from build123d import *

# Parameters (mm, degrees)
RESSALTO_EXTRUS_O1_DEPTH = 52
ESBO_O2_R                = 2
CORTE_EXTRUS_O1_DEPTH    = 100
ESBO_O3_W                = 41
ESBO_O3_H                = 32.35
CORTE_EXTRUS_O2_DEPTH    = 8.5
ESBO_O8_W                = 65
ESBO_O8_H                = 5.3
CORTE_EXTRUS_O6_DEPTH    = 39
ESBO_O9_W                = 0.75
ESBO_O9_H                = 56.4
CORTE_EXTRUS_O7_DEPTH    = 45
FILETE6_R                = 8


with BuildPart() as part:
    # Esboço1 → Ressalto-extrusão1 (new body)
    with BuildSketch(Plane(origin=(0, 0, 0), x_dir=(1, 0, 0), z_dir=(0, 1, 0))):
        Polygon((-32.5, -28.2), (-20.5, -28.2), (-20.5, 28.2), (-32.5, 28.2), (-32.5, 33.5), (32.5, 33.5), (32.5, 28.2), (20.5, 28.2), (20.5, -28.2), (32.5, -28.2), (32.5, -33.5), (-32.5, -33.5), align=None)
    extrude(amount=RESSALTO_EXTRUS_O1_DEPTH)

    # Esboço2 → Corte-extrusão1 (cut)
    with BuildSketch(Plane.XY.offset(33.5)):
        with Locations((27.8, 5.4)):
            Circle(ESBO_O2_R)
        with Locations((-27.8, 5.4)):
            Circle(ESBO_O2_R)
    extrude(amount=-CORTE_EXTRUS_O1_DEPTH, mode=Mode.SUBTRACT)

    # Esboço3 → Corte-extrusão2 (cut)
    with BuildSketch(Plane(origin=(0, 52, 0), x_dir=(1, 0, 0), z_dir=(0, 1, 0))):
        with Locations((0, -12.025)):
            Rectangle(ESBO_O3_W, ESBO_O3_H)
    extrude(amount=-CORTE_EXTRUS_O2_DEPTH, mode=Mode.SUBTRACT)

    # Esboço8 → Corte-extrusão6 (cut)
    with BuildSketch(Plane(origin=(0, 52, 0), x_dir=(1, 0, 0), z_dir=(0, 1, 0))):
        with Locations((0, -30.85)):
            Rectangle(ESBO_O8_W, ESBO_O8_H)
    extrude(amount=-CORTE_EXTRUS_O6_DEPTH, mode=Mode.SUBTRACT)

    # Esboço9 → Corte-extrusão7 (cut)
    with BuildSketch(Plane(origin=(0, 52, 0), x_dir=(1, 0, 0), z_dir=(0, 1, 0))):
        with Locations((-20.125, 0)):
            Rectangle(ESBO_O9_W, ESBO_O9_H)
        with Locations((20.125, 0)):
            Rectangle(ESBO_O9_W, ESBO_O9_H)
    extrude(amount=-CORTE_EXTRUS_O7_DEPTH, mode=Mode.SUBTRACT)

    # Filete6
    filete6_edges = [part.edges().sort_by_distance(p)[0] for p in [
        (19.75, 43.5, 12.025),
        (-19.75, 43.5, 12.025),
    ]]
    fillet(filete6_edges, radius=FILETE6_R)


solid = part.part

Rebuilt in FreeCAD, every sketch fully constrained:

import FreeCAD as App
import Part
import Sketcher
from FreeCAD import Vector
Q = App.Units.Quantity


def edges_at(feature, points):
    """Names of the edges that pass closest to the given points."""
    edges = feature.Shape.Edges
    near = lambda p: min(range(len(edges)), key=lambda i: edges[i].distToShape(Part.Vertex(*p))[0])
    return sorted({f"Edge{near(p) + 1}" for p in points})

doc = App.newDocument("Part")
params = doc.addObject("Spreadsheet::Sheet", "Params")
for row, (alias, value) in enumerate([
    ("sketch1_width", "12 mm"),
    ("sketch1_width2", "65 mm"),
    ("sketch1_height", "5.3 mm"),
    ("sketch1_height2", "56.4 mm"),
    ("pad1_length", "52 mm"),
    ("sketch2_diameter", "4 mm"),
    ("pocket1_length", "100 mm"),
    ("sketch3_width", "41 mm"),
    ("sketch3_height", "32.35 mm"),
    ("pocket2_length", "8.5 mm"),
    ("sketch4_width", "65 mm"),
    ("sketch4_height", "5.3 mm"),
    ("pocket3_length", "39 mm"),
    ("sketch5_height", "56.4 mm"),
    ("sketch5_width", "0.75 mm"),
    ("pocket4_length", "45 mm"),
    ("fillet_radius", "8 mm"),
], start=1):
    params.set(f"A{row}", alias)
    params.set(f"B{row}", "=" + value)
    params.setAlias(f"B{row}", alias)

body = doc.addObject("PartDesign::Body", "Body")

sketch1 = doc.addObject("Sketcher::SketchObject", "Sketch")
body.addObject(sketch1)
sketch1.AttachmentSupport = (doc.XZ_Plane, [""])
sketch1.MapMode = "FlatFace"
sketch1.addGeometry([
    Part.LineSegment(Vector(-20, 28, 0), Vector(-32, 28, 0)),
    Part.LineSegment(Vector(-32, 28, 0), Vector(-32, 34, 0)),
    Part.LineSegment(Vector(-32, 34, 0), Vector(32, 34, 0)),
    Part.LineSegment(Vector(32, 34, 0), Vector(32, 28, 0)),
    Part.LineSegment(Vector(32, 28, 0), Vector(20, 28, 0)),
    Part.LineSegment(Vector(20, 28, 0), Vector(20, -28, 0)),
    Part.LineSegment(Vector(20, -28, 0), Vector(32, -28, 0)),
    Part.LineSegment(Vector(32, -28, 0), Vector(32, -34, 0)),
    Part.LineSegment(Vector(32, -34, 0), Vector(-32, -34, 0)),
    Part.LineSegment(Vector(-32, -34, 0), Vector(-32, -28, 0)),
    Part.LineSegment(Vector(-32, -28, 0), Vector(-20, -28, 0)),
    Part.LineSegment(Vector(-20, -28, 0), Vector(-20, 28, 0)),
], False)
sketch1.addConstraint([
    Sketcher.Constraint("Coincident", 0, 2, 1, 1),
    Sketcher.Constraint("Coincident", 1, 2, 2, 1),
    Sketcher.Constraint("Coincident", 2, 2, 3, 1),
    Sketcher.Constraint("Coincident", 3, 2, 4, 1),
    Sketcher.Constraint("Coincident", 4, 2, 5, 1),
    Sketcher.Constraint("Coincident", 5, 2, 6, 1),
    Sketcher.Constraint("Coincident", 6, 2, 7, 1),
    Sketcher.Constraint("Coincident", 7, 2, 8, 1),
    Sketcher.Constraint("Coincident", 8, 2, 9, 1),
    Sketcher.Constraint("Coincident", 9, 2, 10, 1),
    Sketcher.Constraint("Coincident", 10, 2, 11, 1),
    Sketcher.Constraint("Coincident", 11, 2, 0, 1),
    Sketcher.Constraint("Horizontal", 0),
    Sketcher.Constraint("Vertical", 1),
    Sketcher.Constraint("Horizontal", 2),
    Sketcher.Constraint("Vertical", 3),
    Sketcher.Constraint("Horizontal", 4),
    Sketcher.Constraint("Vertical", 5),
    Sketcher.Constraint("Horizontal", 6),
    Sketcher.Constraint("Vertical", 7),
    Sketcher.Constraint("Horizontal", 8),
    Sketcher.Constraint("Vertical", 9),
    Sketcher.Constraint("Horizontal", 10),
    Sketcher.Constraint("Vertical", 11),
    Sketcher.Constraint("Symmetric", 0, 2, 6, 2, -1, 1),
    Sketcher.Constraint("Symmetric", 2, 2, 8, 2, -1, 1),
    Sketcher.Constraint("Symmetric", 4, 2, 10, 2, -1, 1),
    Sketcher.Constraint("Symmetric", 0, 2, 3, 2, -2),
    Sketcher.Constraint("DistanceX", 0, 2, 0, 1, Q("12 mm")),
    Sketcher.Constraint("DistanceX", 2, 1, 2, 2, Q("65 mm")),
    Sketcher.Constraint("DistanceY", 1, 1, 1, 2, Q("5.3 mm")),
    Sketcher.Constraint("DistanceY", 5, 2, 5, 1, Q("56.4 mm")),
])
sketch1.setExpression("Constraints[28]", "Params.sketch1_width")
sketch1.setExpression("Constraints[29]", "Params.sketch1_width2")
sketch1.setExpression("Constraints[30]", "Params.sketch1_height")
sketch1.setExpression("Constraints[31]", "Params.sketch1_height2")
pad1 = doc.addObject("PartDesign::Pad", "Pad")
body.addObject(pad1)
pad1.Profile = sketch1
pad1.setExpression("Length", "Params.pad1_length")
pad1.Reversed = True

sketch2 = doc.addObject("Sketcher::SketchObject", "Sketch001")
body.addObject(sketch2)
sketch2.AttachmentSupport = (doc.XY_Plane, [""])
sketch2.MapMode = "FlatFace"
sketch2.AttachmentOffset = App.Placement(Vector(0, 0, 33.5), App.Rotation())
sketch2.addGeometry([
    Part.Circle(Vector(27.8, 5.4, 0), Vector(0, 0, 1), 2),
    Part.Circle(Vector(-27.8, 5.4, 0), Vector(0, 0, 1), 2),
], False)
sketch2.addConstraint([
    Sketcher.Constraint("Equal", 0, 1),
    Sketcher.Constraint("Symmetric", 0, 3, 1, 3, -2),
    Sketcher.Constraint("Diameter", 0, Q("4 mm")),
    Sketcher.Constraint("DistanceX", -1, 1, 0, 3, Q("27.8 mm")),
    Sketcher.Constraint("DistanceY", -1, 1, 0, 3, Q("5.4 mm")),
])
sketch2.setExpression("Constraints[2]", "Params.sketch2_diameter")
pocket1 = doc.addObject("PartDesign::Pocket", "Pocket")
body.addObject(pocket1)
pocket1.Profile = sketch2
pocket1.setExpression("Length", "Params.pocket1_length")

sketch3 = doc.addObject("Sketcher::SketchObject", "Sketch002")
body.addObject(sketch3)
sketch3.AttachmentSupport = (doc.XZ_Plane, [""])
sketch3.MapMode = "FlatFace"
sketch3.AttachmentOffset = App.Placement(Vector(0, 0, -52), App.Rotation())
sketch3.addGeometry([
    Part.LineSegment(Vector(-20, -4, 0), Vector(-20, 28, 0)),
    Part.LineSegment(Vector(-20, 28, 0), Vector(20, 28, 0)),
    Part.LineSegment(Vector(20, 28, 0), Vector(20, -4, 0)),
    Part.LineSegment(Vector(20, -4, 0), Vector(-20, -4, 0)),
], False)
sketch3.addConstraint([
    Sketcher.Constraint("Coincident", 0, 2, 1, 1),
    Sketcher.Constraint("Coincident", 1, 2, 2, 1),
    Sketcher.Constraint("Coincident", 2, 2, 3, 1),
    Sketcher.Constraint("Coincident", 3, 2, 0, 1),
    Sketcher.Constraint("Vertical", 0),
    Sketcher.Constraint("Horizontal", 1),
    Sketcher.Constraint("Vertical", 2),
    Sketcher.Constraint("Horizontal", 3),
    Sketcher.Constraint("DistanceX", 1, 1, 1, 2, Q("41 mm")),
    Sketcher.Constraint("DistanceY", 0, 1, 0, 2, Q("32.35 mm")),
    Sketcher.Constraint("DistanceX", 0, 2, -1, 1, Q("20.5 mm")),
    Sketcher.Constraint("DistanceY", -1, 1, 0, 2, Q("28.2 mm")),
])
sketch3.setExpression("Constraints[8]", "Params.sketch3_width")
sketch3.setExpression("Constraints[9]", "Params.sketch3_height")
pocket2 = doc.addObject("PartDesign::Pocket", "Pocket001")
body.addObject(pocket2)
pocket2.Profile = sketch3
pocket2.setExpression("Length", "Params.pocket2_length")
pocket2.Reversed = True

sketch4 = doc.addObject("Sketcher::SketchObject", "Sketch003")
body.addObject(sketch4)
sketch4.AttachmentSupport = (doc.XZ_Plane, [""])
sketch4.MapMode = "FlatFace"
sketch4.AttachmentOffset = App.Placement(Vector(0, 0, -52), App.Rotation())
sketch4.addGeometry([
    Part.LineSegment(Vector(-32, 28, 0), Vector(-32, 34, 0)),
    Part.LineSegment(Vector(-32, 34, 0), Vector(32, 34, 0)),
    Part.LineSegment(Vector(32, 34, 0), Vector(32, 28, 0)),
    Part.LineSegment(Vector(32, 28, 0), Vector(-32, 28, 0)),
], False)
sketch4.addConstraint([
    Sketcher.Constraint("Coincident", 0, 2, 1, 1),
    Sketcher.Constraint("Coincident", 1, 2, 2, 1),
    Sketcher.Constraint("Coincident", 2, 2, 3, 1),
    Sketcher.Constraint("Coincident", 3, 2, 0, 1),
    Sketcher.Constraint("Vertical", 0),
    Sketcher.Constraint("Horizontal", 1),
    Sketcher.Constraint("Vertical", 2),
    Sketcher.Constraint("Horizontal", 3),
    Sketcher.Constraint("DistanceX", 1, 1, 1, 2, Q("65 mm")),
    Sketcher.Constraint("DistanceY", 0, 1, 0, 2, Q("5.3 mm")),
    Sketcher.Constraint("DistanceX", 0, 2, -1, 1, Q("32.5 mm")),
    Sketcher.Constraint("DistanceY", -1, 1, 0, 2, Q("33.5 mm")),
])
sketch4.setExpression("Constraints[8]", "Params.sketch4_width")
sketch4.setExpression("Constraints[9]", "Params.sketch4_height")
pocket3 = doc.addObject("PartDesign::Pocket", "Pocket002")
body.addObject(pocket3)
pocket3.Profile = sketch4
pocket3.setExpression("Length", "Params.pocket3_length")
pocket3.Reversed = True

sketch5 = doc.addObject("Sketcher::SketchObject", "Sketch004")
body.addObject(sketch5)
sketch5.AttachmentSupport = (doc.XZ_Plane, [""])
sketch5.MapMode = "FlatFace"
sketch5.AttachmentOffset = App.Placement(Vector(0, 0, -52), App.Rotation())
sketch5.addGeometry([
    Part.LineSegment(Vector(-20.5, -28.2, 0), Vector(-20.5, 28.2, 0)),
    Part.LineSegment(Vector(-20.5, 28.2, 0), Vector(-19.8, 28.2, 0)),
    Part.LineSegment(Vector(-19.8, 28.2, 0), Vector(-19.8, -28.2, 0)),
    Part.LineSegment(Vector(-19.8, -28.2, 0), Vector(-20.5, -28.2, 0)),
    Part.LineSegment(Vector(19.8, -28.2, 0), Vector(19.8, 28.2, 0)),
    Part.LineSegment(Vector(19.8, 28.2, 0), Vector(20.5, 28.2, 0)),
    Part.LineSegment(Vector(20.5, 28.2, 0), Vector(20.5, -28.2, 0)),
    Part.LineSegment(Vector(20.5, -28.2, 0), Vector(19.8, -28.2, 0)),
], False)
sketch5.addConstraint([
    Sketcher.Constraint("Coincident", 0, 2, 1, 1),
    Sketcher.Constraint("Coincident", 1, 2, 2, 1),
    Sketcher.Constraint("Coincident", 2, 2, 3, 1),
    Sketcher.Constraint("Coincident", 3, 2, 0, 1),
    Sketcher.Constraint("Coincident", 4, 2, 5, 1),
    Sketcher.Constraint("Coincident", 5, 2, 6, 1),
    Sketcher.Constraint("Coincident", 6, 2, 7, 1),
    Sketcher.Constraint("Coincident", 7, 2, 4, 1),
    Sketcher.Constraint("Vertical", 0),
    Sketcher.Constraint("Horizontal", 1),
    Sketcher.Constraint("Vertical", 2),
    Sketcher.Constraint("Horizontal", 3),
    Sketcher.Constraint("Vertical", 4),
    Sketcher.Constraint("Horizontal", 5),
    Sketcher.Constraint("Vertical", 6),
    Sketcher.Constraint("Horizontal", 7),
    Sketcher.Constraint("Symmetric", 2, 2, 4, 2, -1, 1),
    Sketcher.Constraint("Symmetric", 0, 2, 6, 2, -1, 1),
    Sketcher.Constraint("Horizontal", 1, 2, 4, 2),
    Sketcher.Constraint("DistanceY", 0, 1, 0, 2, Q("56.4 mm")),
    Sketcher.Constraint("DistanceX", 0, 2, 5, 2, Q("41 mm")),
    Sketcher.Constraint("DistanceX", 1, 1, 1, 2, Q("0.75 mm")),
])
sketch5.setExpression("Constraints[19]", "Params.sketch5_height")
sketch5.setExpression("Constraints[21]", "Params.sketch5_width")
pocket4 = doc.addObject("PartDesign::Pocket", "Pocket003")
body.addObject(pocket4)
pocket4.Profile = sketch5
pocket4.setExpression("Length", "Params.pocket4_length")
pocket4.Reversed = True
doc.recompute()

fillet = doc.addObject("PartDesign::Fillet", "Fillet")
body.addObject(fillet)
fillet.Base = (pocket4, edges_at(pocket4, [(19.75, 43.5, 12.025), (-19.75, 43.5, 12.025)]))
fillet.setExpression("Radius", "Params.fillet_radius")

doc.recompute()
